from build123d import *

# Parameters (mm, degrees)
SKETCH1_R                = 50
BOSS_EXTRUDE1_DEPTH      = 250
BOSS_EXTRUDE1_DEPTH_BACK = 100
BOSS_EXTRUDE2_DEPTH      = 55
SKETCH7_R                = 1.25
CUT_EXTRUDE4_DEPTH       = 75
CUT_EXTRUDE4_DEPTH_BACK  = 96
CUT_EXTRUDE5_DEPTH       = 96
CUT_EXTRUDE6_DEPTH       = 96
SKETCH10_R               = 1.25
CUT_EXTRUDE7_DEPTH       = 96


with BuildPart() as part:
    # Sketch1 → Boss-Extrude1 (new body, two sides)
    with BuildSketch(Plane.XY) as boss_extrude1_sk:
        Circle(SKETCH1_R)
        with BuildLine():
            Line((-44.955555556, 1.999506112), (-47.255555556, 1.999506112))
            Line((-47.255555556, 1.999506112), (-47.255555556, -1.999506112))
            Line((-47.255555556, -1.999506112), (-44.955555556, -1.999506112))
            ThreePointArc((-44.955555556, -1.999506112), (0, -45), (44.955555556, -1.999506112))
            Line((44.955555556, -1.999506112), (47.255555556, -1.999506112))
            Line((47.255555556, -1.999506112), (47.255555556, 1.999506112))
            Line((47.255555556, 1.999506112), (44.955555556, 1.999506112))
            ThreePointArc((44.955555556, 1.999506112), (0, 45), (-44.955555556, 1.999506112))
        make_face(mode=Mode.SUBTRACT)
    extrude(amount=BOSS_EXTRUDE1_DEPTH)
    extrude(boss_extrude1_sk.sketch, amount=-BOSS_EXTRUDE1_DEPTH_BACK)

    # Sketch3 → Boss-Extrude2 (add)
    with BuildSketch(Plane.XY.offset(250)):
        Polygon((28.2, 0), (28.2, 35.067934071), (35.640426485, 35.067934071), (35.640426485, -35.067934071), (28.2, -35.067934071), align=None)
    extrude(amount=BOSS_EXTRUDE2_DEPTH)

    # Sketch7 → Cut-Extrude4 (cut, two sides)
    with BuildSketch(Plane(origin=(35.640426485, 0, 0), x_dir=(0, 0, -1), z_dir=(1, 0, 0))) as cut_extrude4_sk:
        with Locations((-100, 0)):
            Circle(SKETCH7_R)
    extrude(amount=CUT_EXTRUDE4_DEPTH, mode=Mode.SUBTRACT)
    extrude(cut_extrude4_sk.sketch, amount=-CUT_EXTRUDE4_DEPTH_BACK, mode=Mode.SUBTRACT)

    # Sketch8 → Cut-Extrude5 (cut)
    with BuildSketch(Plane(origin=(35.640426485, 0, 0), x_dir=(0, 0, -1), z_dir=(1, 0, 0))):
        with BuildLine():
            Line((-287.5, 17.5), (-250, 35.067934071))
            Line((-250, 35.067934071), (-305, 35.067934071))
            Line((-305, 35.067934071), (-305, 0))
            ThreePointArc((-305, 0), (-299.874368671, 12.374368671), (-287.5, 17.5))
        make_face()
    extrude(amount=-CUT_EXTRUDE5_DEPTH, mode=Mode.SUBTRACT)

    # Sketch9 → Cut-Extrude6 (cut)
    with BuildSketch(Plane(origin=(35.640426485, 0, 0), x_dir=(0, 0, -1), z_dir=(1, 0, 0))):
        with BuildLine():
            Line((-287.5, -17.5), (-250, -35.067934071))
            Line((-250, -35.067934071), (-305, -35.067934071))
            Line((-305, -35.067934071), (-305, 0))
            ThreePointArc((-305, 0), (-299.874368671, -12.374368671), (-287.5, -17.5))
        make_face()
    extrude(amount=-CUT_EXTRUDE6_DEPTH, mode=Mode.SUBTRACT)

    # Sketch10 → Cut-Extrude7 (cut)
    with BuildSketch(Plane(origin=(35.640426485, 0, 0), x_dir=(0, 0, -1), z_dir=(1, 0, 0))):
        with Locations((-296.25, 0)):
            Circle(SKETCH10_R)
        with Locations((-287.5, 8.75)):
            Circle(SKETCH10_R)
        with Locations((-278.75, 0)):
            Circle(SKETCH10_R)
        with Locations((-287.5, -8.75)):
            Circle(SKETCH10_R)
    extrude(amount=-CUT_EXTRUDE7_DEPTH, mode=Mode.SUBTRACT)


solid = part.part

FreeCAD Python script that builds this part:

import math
import FreeCAD as App
import Part
import Sketcher

doc = App.newDocument("Part")
body = doc.addObject("PartDesign::Body", "Body")

# Sketch on XY plane
sketch1 = body.newObject("Sketcher::SketchObject", "Sketch")
sketch1.AttachmentSupport = (doc.getObject("XY_Plane"), [""])
sketch1.MapMode = "FlatFace"
sketch1.addGeometry([
    Part.Circle(App.Vector(0, 0, 0), App.Vector(0, 0, 1), 50),  # 0
    Part.LineSegment(App.Vector(-47.255556, 1.999506, 0), App.Vector(-44.955556, 1.999506, 0)),  # 1
    Part.ArcOfCircle(Part.Circle(App.Vector(0, 0, 0), App.Vector(0, 0, 1), 45), math.radians(2.546689), math.radians(177.453311)),  # 2
    Part.LineSegment(App.Vector(44.955556, 1.999506, 0), App.Vector(47.255556, 1.999506, 0)),  # 3
    Part.LineSegment(App.Vector(47.255556, 1.999506, 0), App.Vector(47.255556, -1.999506, 0)),  # 4
    Part.LineSegment(App.Vector(47.255556, -1.999506, 0), App.Vector(44.955556, -1.999506, 0)),  # 5
    Part.ArcOfCircle(Part.Circle(App.Vector(0, 0, 0), App.Vector(0, 0, 1), 45), math.radians(-177.453311), math.radians(-2.546689)),  # 6
    Part.LineSegment(App.Vector(-44.955556, -1.999506, 0), App.Vector(-47.255556, -1.999506, 0)),  # 7
    Part.LineSegment(App.Vector(-47.255556, -1.999506, 0), App.Vector(-47.255556, 1.999506, 0)),  # 8
], False)
sketch1.addConstraint([
    Sketcher.Constraint("Coincident", 1, 2, 2, 2),
    Sketcher.Constraint("Coincident", 2, 1, 3, 1),
    Sketcher.Constraint("Coincident", 3, 2, 4, 1),
    Sketcher.Constraint("Coincident", 4, 2, 5, 1),
    Sketcher.Constraint("Coincident", 5, 2, 6, 2),
    Sketcher.Constraint("Coincident", 6, 1, 7, 1),
    Sketcher.Constraint("Coincident", 7, 2, 8, 1),
    Sketcher.Constraint("Coincident", 8, 2, 1, 1),
    Sketcher.Constraint("Horizontal", 1),
    Sketcher.Constraint("Horizontal", 3),
    Sketcher.Constraint("Vertical", 4),
    Sketcher.Constraint("Horizontal", 5),
    Sketcher.Constraint("Horizontal", 7),
    Sketcher.Constraint("Vertical", 8),
    Sketcher.Constraint("Coincident", 0, 3, -1, 1),
    Sketcher.Constraint("Coincident", 2, 3, -1, 1),
    Sketcher.Constraint("Coincident", 6, 3, -1, 1),
    Sketcher.Constraint("Equal", 2, 6),
    Sketcher.Constraint("Symmetric", 3, 2, 7, 2, -1, 1),
    Sketcher.Constraint("Horizontal", 1, 2, 2, 1),
    Sketcher.Constraint("Horizontal", 5, 2, 6, 1),
    Sketcher.Constraint("Diameter", 0, 100.0),
    Sketcher.Constraint("Radius", 2, 45.0),
    Sketcher.Constraint("DistanceX", 1, 1, 1, 2, 2.3),
    Sketcher.Constraint("DistanceY", 4, 2, 4, 1, 3.999012),
])
pad1 = body.newObject("PartDesign::Pad", "Pad")
pad1.Profile = sketch1
pad1.Type = "TwoLengths"
pad1.Length = 250
pad1.Length2 = 100

# Sketch on XY plane
sketch2 = body.newObject("Sketcher::SketchObject", "Sketch001")
sketch2.AttachmentSupport = (doc.getObject("XY_Plane"), [""])
sketch2.MapMode = "FlatFace"
sketch2.AttachmentOffset = App.Placement(App.Vector(0, 0, 250), App.Rotation())
sketch2.addGeometry([
    Part.LineSegment(App.Vector(28.2, 35.067934, 0), App.Vector(28.2, -35.067934, 0)),
    Part.LineSegment(App.Vector(28.2, -35.067934, 0), App.Vector(35.640426, -35.067934, 0)),
    Part.LineSegment(App.Vector(35.640426, -35.067934, 0), App.Vector(35.640426, 35.067934, 0)),
    Part.LineSegment(App.Vector(35.640426, 35.067934, 0), App.Vector(28.2, 35.067934, 0)),
], False)
sketch2.addConstraint([
    Sketcher.Constraint("Coincident", 0, 2, 1, 1),
    Sketcher.Constraint("Coincident", 1, 2, 2, 1),
    Sketcher.Constraint("Coincident", 2, 2, 3, 1),
    Sketcher.Constraint("Coincident", 3, 2, 0, 1),
    Sketcher.Constraint("Vertical", 0),
    Sketcher.Constraint("Horizontal", 1),
    Sketcher.Constraint("Vertical", 2),
    Sketcher.Constraint("Horizontal", 3),
    Sketcher.Constraint("DistanceX", -1, 1, 0, 2, 28.2),
    Sketcher.Constraint("DistanceY", 0, 2, 0, 1, 70.135868),
    Sketcher.Constraint("DistanceX", 1, 1, 1, 2, 7.440426),
    Sketcher.Constraint("DistanceY", 0, 2, -1, 1, 35.067934),
])
pad2 = body.newObject("PartDesign::Pad", "Pad001")
pad2.Profile = sketch2
pad2.Length = 55

# Sketch on YZ plane
sketch3 = body.newObject("Sketcher::SketchObject", "Sketch002")
sketch3.AttachmentSupport = (doc.getObject("YZ_Plane"), [""])
sketch3.MapMode = "FlatFace"
sketch3.AttachmentOffset = App.Placement(App.Vector(0, 0, 35.640426), App.Rotation())
sketch3.addGeometry(Part.Circle(App.Vector(0, 100, 0), App.Vector(0, 0, 1), 1.25), False)
sketch3.addConstraint([
    Sketcher.Constraint("PointOnObject", 0, 3, -2),
    Sketcher.Constraint("Diameter", 0, 2.5),
    Sketcher.Constraint("DistanceY", -1, 1, 0, 3, 100.0),
])
pocket1 = body.newObject("PartDesign::Pocket", "Pocket")
pocket1.Profile = sketch3
pocket1.Type = "ThroughAll"
pocket1.Midplane = True

# Sketch on YZ plane
sketch4 = body.newObject("Sketcher::SketchObject", "Sketch003")
sketch4.AttachmentSupport = (doc.getObject("YZ_Plane"), [""])
sketch4.MapMode = "FlatFace"
sketch4.AttachmentOffset = App.Placement(App.Vector(0, 0, 35.640426), App.Rotation())
sketch4.addGeometry([
    Part.LineSegment(App.Vector(17.5, 287.5, 0), App.Vector(35.067934, 250, 0)),
    Part.LineSegment(App.Vector(35.067934, 250, 0), App.Vector(35.067934, 305, 0)),
    Part.LineSegment(App.Vector(35.067934, 305, 0), App.Vector(0, 305, 0)),
    Part.ArcOfCircle(Part.Circle(App.Vector(0, 287.5, 0), App.Vector(0, 0, 1), 17.5), math.radians(0), math.radians(90)),
], False)
sketch4.addConstraint([
    Sketcher.Constraint("Coincident", 0, 2, 1, 1),
    Sketcher.Constraint("Coincident", 1, 2, 2, 1),
    Sketcher.Constraint("Tangent", 2, 2, 3, 2),
    Sketcher.Constraint("Coincident", 3, 1, 0, 1),
    Sketcher.Constraint("Vertical", 1),
    Sketcher.Constraint("Horizontal", 2),
    Sketcher.Constraint("PointOnObject", 3, 3, -2),
    Sketcher.Constraint("Radius", 3, 17.5),
    Sketcher.Constraint("DistanceY", 1, 1, 1, 2, 55.0),
    Sketcher.Constraint("DistanceY", -1, 1, 0, 2, 250.0),
    Sketcher.Constraint("DistanceY", -1, 1, 3, 1, 287.5),
    Sketcher.Constraint("DistanceX", 2, 2, 2, 1, 35.067934),
])
pocket2 = body.newObject("PartDesign::Pocket", "Pocket001")
pocket2.Profile = sketch4
pocket2.Length = 96

# Sketch on YZ plane
sketch5 = body.newObject("Sketcher::SketchObject", "Sketch004")
sketch5.AttachmentSupport = (doc.getObject("YZ_Plane"), [""])
sketch5.MapMode = "FlatFace"
sketch5.AttachmentOffset = App.Placement(App.Vector(0, 0, 35.640426), App.Rotation())
sketch5.addGeometry([
    Part.LineSegment(App.Vector(-35.067934, 250, 0), App.Vector(-17.5, 287.5, 0)),
    Part.ArcOfCircle(Part.Circle(App.Vector(0, 287.5, 0), App.Vector(0, 0, 1), 17.5), math.radians(90), math.radians(180)),
    Part.LineSegment(App.Vector(0, 305, 0), App.Vector(-35.067934, 305, 0)),
    Part.LineSegment(App.Vector(-35.067934, 305, 0), App.Vector(-35.067934, 250, 0)),
], False)
sketch5.addConstraint([
    Sketcher.Constraint("Coincident", 0, 2, 1, 2),
    Sketcher.Constraint("Tangent", 1, 1, 2, 1),
    Sketcher.Constraint("Coincident", 2, 2, 3, 1),
    Sketcher.Constraint("Coincident", 3, 2, 0, 1),
    Sketcher.Constraint("Horizontal", 2),
    Sketcher.Constraint("Vertical", 3),
    Sketcher.Constraint("PointOnObject", 1, 3, -2),
    Sketcher.Constraint("Horizontal", 1, 3, 0, 2),
    Sketcher.Constraint("Radius", 1, 17.5),
    Sketcher.Constraint("DistanceY", 3, 2, 3, 1, 55.0),
    Sketcher.Constraint("DistanceY", -1, 1, 1, 1, 305.0),
    Sketcher.Constraint("DistanceX", 2, 2, 2, 1, 35.067934),
])
pocket3 = body.newObject("PartDesign::Pocket", "Pocket002")
pocket3.Profile = sketch5
pocket3.Length = 96

# Sketch on YZ plane
sketch6 = body.newObject("Sketcher::SketchObject", "Sketch005")
sketch6.AttachmentSupport = (doc.getObject("YZ_Plane"), [""])
sketch6.MapMode = "FlatFace"
sketch6.AttachmentOffset = App.Placement(App.Vector(0, 0, 35.640426), App.Rotation())
sketch6.addGeometry([
    Part.Circle(App.Vector(0, 296.25, 0), App.Vector(0, 0, 1), 1.25),
    Part.Circle(App.Vector(8.75, 287.5, 0), App.Vector(0, 0, 1), 1.25),
    Part.Circle(App.Vector(0, 278.75, 0), App.Vector(0, 0, 1), 1.25),
    Part.Circle(App.Vector(-8.75, 287.5, 0), App.Vector(0, 0, 1), 1.25),
], False)
sketch6.addConstraint([
    Sketcher.Constraint("Equal", 0, 1),
    Sketcher.Constraint("Equal", 1, 2),
    Sketcher.Constraint("Equal", 2, 3),
    Sketcher.Constraint("Symmetric", 1, 3, 3, 3, -2),
    Sketcher.Constraint("PointOnObject", 0, 3, -2),
    Sketcher.Constraint("PointOnObject", 2, 3, -2),
    Sketcher.Constraint("Diameter", 0, 2.5),
    Sketcher.Constraint("DistanceY", -1, 1, 1, 3, 287.5),
    Sketcher.Constraint("DistanceY", 2, 3, 0, 3, 17.5),
    Sketcher.Constraint("DistanceX", 3, 3, 1, 3, 17.5),
    Sketcher.Constraint("DistanceY", -1, 1, 0, 3, 296.25),
])
pocket4 = body.newObject("PartDesign::Pocket", "Pocket003")
pocket4.Profile = sketch6
pocket4.Length = 96

doc.recompute()
